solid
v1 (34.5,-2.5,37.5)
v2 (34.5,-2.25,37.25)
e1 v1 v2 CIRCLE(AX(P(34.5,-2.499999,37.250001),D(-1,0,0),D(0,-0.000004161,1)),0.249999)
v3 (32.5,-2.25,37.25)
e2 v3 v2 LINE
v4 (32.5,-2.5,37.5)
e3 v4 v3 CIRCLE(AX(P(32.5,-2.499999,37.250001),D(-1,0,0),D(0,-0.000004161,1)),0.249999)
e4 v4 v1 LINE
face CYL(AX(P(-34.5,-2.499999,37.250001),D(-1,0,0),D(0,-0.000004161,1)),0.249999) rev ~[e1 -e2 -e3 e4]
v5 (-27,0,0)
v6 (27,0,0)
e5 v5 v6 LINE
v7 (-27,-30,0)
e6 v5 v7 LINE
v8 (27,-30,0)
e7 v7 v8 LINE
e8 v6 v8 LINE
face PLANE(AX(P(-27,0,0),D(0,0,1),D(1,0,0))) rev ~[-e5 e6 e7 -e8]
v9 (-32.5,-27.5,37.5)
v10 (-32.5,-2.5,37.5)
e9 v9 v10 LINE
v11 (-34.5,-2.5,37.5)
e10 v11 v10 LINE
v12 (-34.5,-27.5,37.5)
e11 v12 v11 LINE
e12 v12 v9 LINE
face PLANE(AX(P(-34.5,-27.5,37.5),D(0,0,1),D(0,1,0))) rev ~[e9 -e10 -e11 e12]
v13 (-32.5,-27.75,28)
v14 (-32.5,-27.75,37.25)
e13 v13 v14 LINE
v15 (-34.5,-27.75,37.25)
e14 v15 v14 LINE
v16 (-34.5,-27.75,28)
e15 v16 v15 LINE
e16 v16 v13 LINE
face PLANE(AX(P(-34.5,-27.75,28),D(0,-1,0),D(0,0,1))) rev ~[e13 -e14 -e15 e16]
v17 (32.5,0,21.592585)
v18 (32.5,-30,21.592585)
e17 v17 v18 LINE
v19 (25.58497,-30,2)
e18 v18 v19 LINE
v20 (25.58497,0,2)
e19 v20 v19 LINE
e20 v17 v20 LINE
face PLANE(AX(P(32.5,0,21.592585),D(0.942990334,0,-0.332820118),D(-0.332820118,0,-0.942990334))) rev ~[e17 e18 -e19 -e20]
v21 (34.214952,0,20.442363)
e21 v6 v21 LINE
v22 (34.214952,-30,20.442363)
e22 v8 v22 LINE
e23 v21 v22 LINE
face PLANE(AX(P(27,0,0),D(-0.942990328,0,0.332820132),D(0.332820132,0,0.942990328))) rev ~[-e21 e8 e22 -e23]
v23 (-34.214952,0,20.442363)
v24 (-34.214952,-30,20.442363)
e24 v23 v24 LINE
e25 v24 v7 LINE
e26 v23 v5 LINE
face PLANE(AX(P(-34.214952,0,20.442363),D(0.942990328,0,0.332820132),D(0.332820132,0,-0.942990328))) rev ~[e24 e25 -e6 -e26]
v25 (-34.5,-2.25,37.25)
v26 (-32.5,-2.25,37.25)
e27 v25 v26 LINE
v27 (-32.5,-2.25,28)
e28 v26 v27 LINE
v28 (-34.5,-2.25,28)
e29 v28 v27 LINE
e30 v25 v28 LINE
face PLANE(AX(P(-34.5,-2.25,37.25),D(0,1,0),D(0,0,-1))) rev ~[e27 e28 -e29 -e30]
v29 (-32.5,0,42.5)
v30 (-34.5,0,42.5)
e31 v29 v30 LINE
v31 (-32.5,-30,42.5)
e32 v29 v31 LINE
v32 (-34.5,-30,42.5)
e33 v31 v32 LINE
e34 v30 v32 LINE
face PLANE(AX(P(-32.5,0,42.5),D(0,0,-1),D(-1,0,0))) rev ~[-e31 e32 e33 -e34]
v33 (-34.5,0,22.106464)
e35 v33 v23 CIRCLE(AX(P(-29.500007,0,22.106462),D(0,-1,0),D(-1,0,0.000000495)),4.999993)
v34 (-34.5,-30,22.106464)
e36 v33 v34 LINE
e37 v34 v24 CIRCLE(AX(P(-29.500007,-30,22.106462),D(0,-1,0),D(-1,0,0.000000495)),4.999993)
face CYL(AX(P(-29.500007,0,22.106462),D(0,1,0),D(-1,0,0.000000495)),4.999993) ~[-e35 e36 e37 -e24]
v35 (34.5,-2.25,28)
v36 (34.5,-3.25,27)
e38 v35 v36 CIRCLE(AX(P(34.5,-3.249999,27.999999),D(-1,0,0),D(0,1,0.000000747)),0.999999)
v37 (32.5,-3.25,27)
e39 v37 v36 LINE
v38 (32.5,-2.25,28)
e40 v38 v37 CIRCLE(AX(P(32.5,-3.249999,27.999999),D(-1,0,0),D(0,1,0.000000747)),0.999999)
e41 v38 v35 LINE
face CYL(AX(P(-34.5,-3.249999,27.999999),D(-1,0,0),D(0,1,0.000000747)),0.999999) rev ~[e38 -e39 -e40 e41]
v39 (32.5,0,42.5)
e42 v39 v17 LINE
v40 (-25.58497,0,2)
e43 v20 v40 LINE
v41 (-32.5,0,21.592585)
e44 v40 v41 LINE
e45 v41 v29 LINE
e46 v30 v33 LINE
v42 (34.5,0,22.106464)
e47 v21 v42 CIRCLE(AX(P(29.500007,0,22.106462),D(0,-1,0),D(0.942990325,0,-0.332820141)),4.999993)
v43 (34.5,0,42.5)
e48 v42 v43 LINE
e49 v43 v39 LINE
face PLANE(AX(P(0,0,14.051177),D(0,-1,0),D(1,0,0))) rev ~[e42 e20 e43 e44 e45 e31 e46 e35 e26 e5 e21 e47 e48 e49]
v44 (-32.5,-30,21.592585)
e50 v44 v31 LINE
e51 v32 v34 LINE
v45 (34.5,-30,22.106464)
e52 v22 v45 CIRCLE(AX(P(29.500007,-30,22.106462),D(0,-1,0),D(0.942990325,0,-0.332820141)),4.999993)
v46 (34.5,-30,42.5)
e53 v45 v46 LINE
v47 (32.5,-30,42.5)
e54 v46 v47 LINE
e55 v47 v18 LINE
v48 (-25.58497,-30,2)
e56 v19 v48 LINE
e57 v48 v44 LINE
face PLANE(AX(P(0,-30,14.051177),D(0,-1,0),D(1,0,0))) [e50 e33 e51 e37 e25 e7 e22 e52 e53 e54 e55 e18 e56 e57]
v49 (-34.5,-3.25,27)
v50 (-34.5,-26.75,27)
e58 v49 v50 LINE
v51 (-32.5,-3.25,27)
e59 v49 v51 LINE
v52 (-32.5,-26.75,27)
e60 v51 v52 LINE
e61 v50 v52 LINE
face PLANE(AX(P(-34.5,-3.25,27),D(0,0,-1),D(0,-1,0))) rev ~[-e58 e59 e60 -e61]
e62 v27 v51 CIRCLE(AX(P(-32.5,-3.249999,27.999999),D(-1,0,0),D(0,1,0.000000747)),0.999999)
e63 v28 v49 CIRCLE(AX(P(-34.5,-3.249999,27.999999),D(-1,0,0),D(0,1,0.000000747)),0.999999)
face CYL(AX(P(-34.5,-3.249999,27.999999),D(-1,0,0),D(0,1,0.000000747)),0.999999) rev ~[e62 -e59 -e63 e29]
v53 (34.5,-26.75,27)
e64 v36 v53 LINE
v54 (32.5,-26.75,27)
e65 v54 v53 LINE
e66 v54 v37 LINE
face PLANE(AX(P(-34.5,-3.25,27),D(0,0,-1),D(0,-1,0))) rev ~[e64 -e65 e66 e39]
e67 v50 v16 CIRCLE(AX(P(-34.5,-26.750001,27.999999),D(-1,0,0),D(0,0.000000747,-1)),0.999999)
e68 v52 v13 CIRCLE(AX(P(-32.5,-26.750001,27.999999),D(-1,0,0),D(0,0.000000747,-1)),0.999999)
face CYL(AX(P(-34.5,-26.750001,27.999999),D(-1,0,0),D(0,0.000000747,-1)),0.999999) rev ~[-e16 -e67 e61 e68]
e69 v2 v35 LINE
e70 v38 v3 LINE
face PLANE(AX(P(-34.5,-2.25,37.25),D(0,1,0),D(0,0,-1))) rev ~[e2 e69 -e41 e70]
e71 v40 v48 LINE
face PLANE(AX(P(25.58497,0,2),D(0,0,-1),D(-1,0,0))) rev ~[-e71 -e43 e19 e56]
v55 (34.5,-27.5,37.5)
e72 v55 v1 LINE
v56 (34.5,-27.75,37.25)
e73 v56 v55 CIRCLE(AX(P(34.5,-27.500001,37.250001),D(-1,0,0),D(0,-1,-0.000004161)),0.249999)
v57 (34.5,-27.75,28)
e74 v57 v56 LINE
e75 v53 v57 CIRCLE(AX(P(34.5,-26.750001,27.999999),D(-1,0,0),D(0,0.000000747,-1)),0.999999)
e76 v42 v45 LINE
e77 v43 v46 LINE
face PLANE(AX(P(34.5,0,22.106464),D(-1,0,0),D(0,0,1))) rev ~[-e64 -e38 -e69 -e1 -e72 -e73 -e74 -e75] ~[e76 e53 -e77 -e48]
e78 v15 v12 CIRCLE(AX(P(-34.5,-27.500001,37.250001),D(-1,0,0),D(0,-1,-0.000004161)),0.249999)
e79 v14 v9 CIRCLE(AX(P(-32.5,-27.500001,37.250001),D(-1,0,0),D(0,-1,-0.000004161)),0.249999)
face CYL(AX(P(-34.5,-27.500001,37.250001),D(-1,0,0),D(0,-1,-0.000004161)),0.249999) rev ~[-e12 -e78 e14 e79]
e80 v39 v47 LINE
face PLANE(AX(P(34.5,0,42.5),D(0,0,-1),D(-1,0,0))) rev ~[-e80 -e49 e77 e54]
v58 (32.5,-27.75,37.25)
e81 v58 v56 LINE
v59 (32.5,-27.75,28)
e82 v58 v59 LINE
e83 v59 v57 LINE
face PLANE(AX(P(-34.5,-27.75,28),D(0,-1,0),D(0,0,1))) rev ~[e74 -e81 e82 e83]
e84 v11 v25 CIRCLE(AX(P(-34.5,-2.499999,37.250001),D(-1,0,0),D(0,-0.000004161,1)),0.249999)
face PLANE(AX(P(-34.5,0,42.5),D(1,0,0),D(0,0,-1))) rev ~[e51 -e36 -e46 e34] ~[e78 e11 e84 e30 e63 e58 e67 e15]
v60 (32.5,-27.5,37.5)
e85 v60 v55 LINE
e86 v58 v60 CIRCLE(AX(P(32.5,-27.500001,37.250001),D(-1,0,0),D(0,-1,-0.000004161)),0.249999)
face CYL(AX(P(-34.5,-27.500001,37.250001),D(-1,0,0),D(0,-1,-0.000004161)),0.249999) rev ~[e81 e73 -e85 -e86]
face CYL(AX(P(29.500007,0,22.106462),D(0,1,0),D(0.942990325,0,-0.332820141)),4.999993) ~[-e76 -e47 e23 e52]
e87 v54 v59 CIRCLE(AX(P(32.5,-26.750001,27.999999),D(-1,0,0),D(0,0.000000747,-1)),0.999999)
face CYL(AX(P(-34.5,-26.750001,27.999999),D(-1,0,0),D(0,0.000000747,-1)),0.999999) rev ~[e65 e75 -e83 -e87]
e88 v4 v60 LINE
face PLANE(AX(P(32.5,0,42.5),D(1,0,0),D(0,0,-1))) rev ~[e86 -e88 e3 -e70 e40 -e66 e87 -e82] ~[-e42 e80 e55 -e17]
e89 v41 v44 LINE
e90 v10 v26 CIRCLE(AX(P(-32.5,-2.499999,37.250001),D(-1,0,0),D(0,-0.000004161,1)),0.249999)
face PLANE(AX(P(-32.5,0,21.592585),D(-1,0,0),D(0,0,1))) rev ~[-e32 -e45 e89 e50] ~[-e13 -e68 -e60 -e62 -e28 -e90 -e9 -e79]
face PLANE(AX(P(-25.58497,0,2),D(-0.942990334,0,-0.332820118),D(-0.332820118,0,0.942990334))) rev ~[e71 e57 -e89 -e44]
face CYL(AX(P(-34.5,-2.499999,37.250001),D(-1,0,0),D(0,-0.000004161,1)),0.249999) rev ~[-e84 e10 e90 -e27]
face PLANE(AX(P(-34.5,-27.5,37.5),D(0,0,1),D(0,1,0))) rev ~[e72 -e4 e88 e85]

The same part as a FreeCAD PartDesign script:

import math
import FreeCAD as App
import Part
import Sketcher

doc = App.newDocument("Part")
body = doc.addObject("PartDesign::Body", "Body")

# Sketch on XZ plane
sketch1 = body.newObject("Sketcher::SketchObject", "Sketch")
sketch1.AttachmentSupport = (doc.getObject("XZ_Plane"), [""])
sketch1.MapMode = "FlatFace"
sketch1.addGeometry([
    Part.LineSegment(App.Vector(-27, 0, 0), App.Vector(27, 0, 0)),  # 0
    Part.LineSegment(App.Vector(27, 0, 0), App.Vector(34.2, 20.4, 0)),  # 1
    Part.ArcOfCircle(Part.Circle(App.Vector(29.5, 22.1, 0), App.Vector(0, 0, 1), 5), math.radians(-19.44), math.radians(0)),  # 2
    Part.LineSegment(App.Vector(34.5, 22.1, 0), App.Vector(34.5, 42.5, 0)),  # 3
    Part.LineSegment(App.Vector(34.5, 42.5, 0), App.Vector(32.5, 42.5, 0)),  # 4
    Part.LineSegment(App.Vector(32.5, 42.5, 0), App.Vector(32.5, 21.6, 0)),  # 5
    Part.LineSegment(App.Vector(32.5, 21.6, 0), App.Vector(25.6, 2, 0)),  # 6
    Part.LineSegment(App.Vector(25.6, 2, 0), App.Vector(-25.6, 2, 0)),  # 7
    Part.LineSegment(App.Vector(-25.6, 2, 0), App.Vector(-32.5, 21.6, 0)),  # 8
    Part.LineSegment(App.Vector(-32.5, 21.6, 0), App.Vector(-32.5, 42.5, 0)),  # 9
    Part.LineSegment(App.Vector(-32.5, 42.5, 0), App.Vector(-34.5, 42.5, 0)),  # 10
    Part.LineSegment(App.Vector(-34.5, 42.5, 0), App.Vector(-34.5, 22.1, 0)),  # 11
    Part.ArcOfCircle(Part.Circle(App.Vector(-29.5, 22.1, 0), App.Vector(0, 0, 1), 5), math.radians(180), math.radians(199.44)),  # 12
    Part.LineSegment(App.Vector(-34.2, 20.4, 0), App.Vector(-27, 0, 0)),  # 13
], False)
sketch1.addConstraint([
    Sketcher.Constraint("Coincident", 0, 2, 1, 1),
    Sketcher.Constraint("Tangent", 1, 2, 2, 1),
    Sketcher.Constraint("Tangent", 2, 2, 3, 1),
    Sketcher.Constraint("Coincident", 3, 2, 4, 1),
    Sketcher.Constraint("Coincident", 4, 2, 5, 1),
    Sketcher.Constraint("Coincident", 5, 2, 6, 1),
    Sketcher.Constraint("Coincident", 6, 2, 7, 1),
    Sketcher.Constraint("Coincident", 7, 2, 8, 1),
    Sketcher.Constraint("Coincident", 8, 2, 9, 1),
    Sketcher.Constraint("Coincident", 9, 2, 10, 1),
    Sketcher.Constraint("Coincident", 10, 2, 11, 1),
    Sketcher.Constraint("Tangent", 11, 2, 12, 1),
    Sketcher.Constraint("Tangent", 12, 2, 13, 1),
    Sketcher.Constraint("Coincident", 13, 2, 0, 1),
    Sketcher.Constraint("Horizontal", 0),
    Sketcher.Constraint("Vertical", 3),
    Sketcher.Constraint("Horizontal", 4),
    Sketcher.Constraint("Vertical", 5),
    Sketcher.Constraint("Horizontal", 7),
    Sketcher.Constraint("Vertical", 9),
    Sketcher.Constraint("Horizontal", 10),
    Sketcher.Constraint("Vertical", 11),
    Sketcher.Constraint("Equal", 2, 12),
    Sketcher.Constraint("Symmetric", 0, 2, 13, 2, -1, 1),
    Sketcher.Constraint("Symmetric", 2, 3, 12, 3, -2),
    Sketcher.Constraint("Symmetric", 5, 2, 8, 2, -2),
    Sketcher.Constraint("Parallel", 1, 6),
    Sketcher.Constraint("Parallel", 8, 13),
    Sketcher.Constraint("Horizontal", 4, 2, 9, 2),
    Sketcher.Constraint("DistanceX", 0, 1, 0, 2, 54.0),
    Sketcher.Constraint("DistanceX", 4, 2, 4, 1, 2.0),
    Sketcher.Constraint("DistanceY", -1, 1, 6, 2, 2.0),
    Sketcher.Constraint("DistanceX", 9, 2, 4, 2, 65.0),
    Sketcher.Constraint("DistanceY", -1, 1, 3, 2, 42.5),
    Sketcher.Constraint("Radius", 2, 4.999993),
    Sketcher.Constraint("DistanceX", 7, 2, 7, 1, 51.16994),
    Sketcher.Constraint("DistanceY", 1, 2, 2, 3, 1.664099),
])
pad1 = body.newObject("PartDesign::Pad", "Pad")
pad1.Profile = sketch1
pad1.Length = 30

# Sketch on YZ plane
sketch2 = body.newObject("Sketcher::SketchObject", "Sketch001")
sketch2.AttachmentSupport = (doc.getObject("YZ_Plane"), [""])
sketch2.MapMode = "FlatFace"
sketch2.AttachmentOffset = App.Placement(App.Vector(0, 0, -34.5), App.Rotation())
sketch2.addGeometry([
    Part.ArcOfCircle(Part.Circle(App.Vector(-2.5, 37.25, 0), App.Vector(0, 0, 1), 0.25), math.radians(0), math.radians(90)),  # 0
    Part.LineSegment(App.Vector(-2.25, 37.25, 0), App.Vector(-2.25, 28, 0)),  # 1
    Part.ArcOfCircle(Part.Circle(App.Vector(-3.25, 28, 0), App.Vector(0, 0, 1), 1), math.radians(-90), math.radians(0)),  # 2
    Part.LineSegment(App.Vector(-3.25, 27, 0), App.Vector(-26.75, 27, 0)),  # 3
    Part.ArcOfCircle(Part.Circle(App.Vector(-26.75, 28, 0), App.Vector(0, 0, 1), 1), math.radians(180), math.radians(270)),  # 4
    Part.LineSegment(App.Vector(-27.75, 28, 0), App.Vector(-27.75, 37.25, 0)),  # 5
    Part.ArcOfCircle(Part.Circle(App.Vector(-27.5, 37.25, 0), App.Vector(0, 0, 1), 0.25), math.radians(90), math.radians(180)),  # 6
    Part.LineSegment(App.Vector(-27.5, 37.5, 0), App.Vector(-2.5, 37.5, 0)),  # 7
], False)
sketch2.addConstraint([
    Sketcher.Constraint("Coincident", 0, 1, 1, 1),
    Sketcher.Constraint("Tangent", 1, 2, 2, 2),
    Sketcher.Constraint("Tangent", 2, 1, 3, 1),
    Sketcher.Constraint("Tangent", 3, 2, 4, 2),
    Sketcher.Constraint("Tangent", 4, 1, 5, 1),
    Sketcher.Constraint("Coincident", 5, 2, 6, 2),
    Sketcher.Constraint("Coincident", 6, 1, 7, 1),
    Sketcher.Constraint("Coincident", 7, 2, 0, 2),
    Sketcher.Constraint("Vertical", 1),
    Sketcher.Constraint("Horizontal", 3),
    Sketcher.Constraint("Vertical", 5),
    Sketcher.Constraint("Horizontal", 7),
    Sketcher.Constraint("Equal", 2, 4),
    Sketcher.Constraint("Equal", 0, 6),
    Sketcher.Constraint("Horizontal", 6, 3, 0, 1),
    Sketcher.Constraint("Horizontal", 0, 1, 5, 2),
    Sketcher.Constraint("Vertical", 0, 3, 7, 2),
    Sketcher.Constraint("Radius", 2, 0.999999),
    Sketcher.Constraint("DistanceX", 7, 1, 7, 2, 25.0),
    Sketcher.Constraint("Radius", 0, 0.249999),
    Sketcher.Constraint("DistanceX", 3, 2, 3, 1, 23.5),
    Sketcher.Constraint("DistanceY", -1, 1, 2, 3, 27.999999),
    Sketcher.Constraint("DistanceY", 1, 2, 1, 1, 9.25),
    Sketcher.Constraint("DistanceX", 0, 3, -1, 1, 2.499999),
])
pocket1 = body.newObject("PartDesign::Pocket", "Pocket")
pocket1.Profile = sketch2
pocket1.Length = 70
pocket1.Reversed = True

doc.recompute()
